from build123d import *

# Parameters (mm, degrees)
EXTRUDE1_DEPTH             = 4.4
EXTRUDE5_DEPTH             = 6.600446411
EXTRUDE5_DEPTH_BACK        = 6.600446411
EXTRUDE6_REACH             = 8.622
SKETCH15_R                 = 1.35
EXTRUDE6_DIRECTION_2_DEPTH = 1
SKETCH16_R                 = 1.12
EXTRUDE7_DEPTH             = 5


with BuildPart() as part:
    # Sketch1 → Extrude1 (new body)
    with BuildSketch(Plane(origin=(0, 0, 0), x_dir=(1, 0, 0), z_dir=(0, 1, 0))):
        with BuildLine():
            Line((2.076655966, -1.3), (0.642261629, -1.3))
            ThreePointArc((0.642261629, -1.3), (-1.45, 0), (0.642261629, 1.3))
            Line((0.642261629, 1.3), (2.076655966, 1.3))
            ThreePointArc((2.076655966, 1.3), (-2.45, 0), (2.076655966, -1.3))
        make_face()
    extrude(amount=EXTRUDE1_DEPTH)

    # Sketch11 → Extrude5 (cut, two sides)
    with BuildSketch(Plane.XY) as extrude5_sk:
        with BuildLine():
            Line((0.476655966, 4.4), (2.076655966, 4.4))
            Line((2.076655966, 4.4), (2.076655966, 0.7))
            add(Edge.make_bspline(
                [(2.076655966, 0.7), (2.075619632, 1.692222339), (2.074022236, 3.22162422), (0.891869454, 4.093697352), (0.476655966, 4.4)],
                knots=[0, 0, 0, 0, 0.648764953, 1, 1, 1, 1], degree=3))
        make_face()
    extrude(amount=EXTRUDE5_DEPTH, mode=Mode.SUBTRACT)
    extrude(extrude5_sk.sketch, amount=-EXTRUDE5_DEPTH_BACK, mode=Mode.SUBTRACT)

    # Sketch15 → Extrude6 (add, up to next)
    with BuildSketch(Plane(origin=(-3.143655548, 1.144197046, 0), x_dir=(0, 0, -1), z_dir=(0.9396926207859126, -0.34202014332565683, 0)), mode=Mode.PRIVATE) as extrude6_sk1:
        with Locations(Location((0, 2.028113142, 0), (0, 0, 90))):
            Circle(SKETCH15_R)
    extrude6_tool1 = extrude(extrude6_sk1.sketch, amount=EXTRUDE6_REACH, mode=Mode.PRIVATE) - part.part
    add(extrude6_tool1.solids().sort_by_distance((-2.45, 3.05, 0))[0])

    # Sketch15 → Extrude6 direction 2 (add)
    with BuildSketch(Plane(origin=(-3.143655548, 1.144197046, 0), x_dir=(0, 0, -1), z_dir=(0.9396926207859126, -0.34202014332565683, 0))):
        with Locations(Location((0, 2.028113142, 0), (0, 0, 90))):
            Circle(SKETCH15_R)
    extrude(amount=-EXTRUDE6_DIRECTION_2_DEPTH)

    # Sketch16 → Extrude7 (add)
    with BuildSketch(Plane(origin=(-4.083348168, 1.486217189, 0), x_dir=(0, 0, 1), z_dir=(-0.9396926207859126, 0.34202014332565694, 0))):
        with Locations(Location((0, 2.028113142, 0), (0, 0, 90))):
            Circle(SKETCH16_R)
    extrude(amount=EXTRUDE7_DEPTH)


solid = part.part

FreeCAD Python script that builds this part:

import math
import FreeCAD as App
import Part
import Sketcher

V = App.Vector
Q = App.Units.Quantity

doc = App.newDocument("Part")
params = doc.addObject("Spreadsheet::Sheet", "Params")
for row, (alias, value) in enumerate([
    ("sketch1_radius", "1.45 mm"),
    ("sketch1_radius2", "2.45 mm"),
    ("pad1_length", "4.4 mm"),
    ("sketch3_diameter", "2.7 mm"),
    ("sketch4_diameter", "2.7 mm"),
    ("pad3_length", "1 mm"),
    ("sketch5_diameter", "2.24 mm"),
    ("pad4_length", "5 mm"),
], start=1):
    params.set(f"A{row}", alias)
    params.set(f"B{row}", "=" + value)
    params.setAlias(f"B{row}", alias)

body = doc.addObject("PartDesign::Body", "Body")

# Sketch on XZ plane
sketch1 = body.newObject("Sketcher::SketchObject", "Sketch")
sketch1.AttachmentSupport = (doc.getObject("XZ_Plane"), [""])
sketch1.MapMode = "FlatFace"
sketch1.addGeometry([
    Part.LineSegment(V(2.076656, 1.3, 0), V(0.642262, 1.3, 0)),
    Part.ArcOfCircle(Part.Circle(V(0, 0, 0), V(0, 0, 1), 1.45), math.radians(63.708445), math.radians(296.291555)),
    Part.LineSegment(V(0.642262, -1.3, 0), V(2.076656, -1.3, 0)),
    Part.ArcOfCircle(Part.Circle(V(0, 0, 0), V(0, 0, 1), 2.45), math.radians(32.046831), math.radians(327.953169)),
], False)
sketch1.addConstraint([
    Sketcher.Constraint("Coincident", 0, 2, 1, 1),
    Sketcher.Constraint("Coincident", 1, 2, 2, 1),
    Sketcher.Constraint("Coincident", 2, 2, 3, 2),
    Sketcher.Constraint("Coincident", 3, 1, 0, 1),
    Sketcher.Constraint("Horizontal", 0),
    Sketcher.Constraint("Horizontal", 2),
    Sketcher.Constraint("Coincident", 1, 3, -1, 1),
    Sketcher.Constraint("Coincident", 3, 3, -1, 1),
    Sketcher.Constraint("Vertical", 0, 2, 1, 2),
    Sketcher.Constraint("Radius", 1, Q("1.45 mm")),
    Sketcher.Constraint("Radius", 3, Q("2.45 mm")),
    Sketcher.Constraint("DistanceY", -1, 1, 0, 2, Q("1.3 mm")),
])
sketch1.setExpression("Constraints[9]", "Params.sketch1_radius")
sketch1.setExpression("Constraints[10]", "Params.sketch1_radius2")
pad1 = body.newObject("PartDesign::Pad", "Pad")
pad1.Profile = sketch1
pad1.setExpression("Length", "Params.pad1_length")
pad1.Reversed = True

# Sketch on XY plane
sketch2 = body.newObject("Sketcher::SketchObject", "Sketch001")
sketch2.AttachmentSupport = (doc.getObject("XY_Plane"), [""])
sketch2.MapMode = "FlatFace"
sketch2.addGeometry([
    Part.LineSegment(V(2.076656, 4.4, 0), V(0.476656, 4.4, 0)),
    Part.BSplineCurve([V(2.076656, 0.7, 0), V(2.07562, 1.692222, 0), V(2.074022, 3.221624, 0), V(0.891869, 4.093697, 0), V(0.476656, 4.4, 0)], [4, 1, 4], [0, 0.648764953, 1], False, 3, [1, 1, 1, 1, 1], False),
    Part.LineSegment(V(2.076656, 0.7, 0), V(2.076656, 4.4, 0)),
], False)
sketch2.addConstraint([
    Sketcher.Constraint("Block", 1),
    Sketcher.Constraint("Coincident", 0, 2, 1, 2),
    Sketcher.Constraint("Coincident", 1, 1, 2, 1),
    Sketcher.Constraint("Coincident", 2, 2, 0, 1),
    Sketcher.Constraint("Horizontal", 0),
    Sketcher.Constraint("Vertical", 2),
])
pocket1 = body.newObject("PartDesign::Pocket", "Pocket")
pocket1.Profile = sketch2
pocket1.Type = "ThroughAll"
pocket1.Midplane = True

# Sketch on an angled plane
sketch3 = body.newObject("Sketcher::SketchObject", "Sketch002")
sketch3.Placement = App.Placement(V(-3.143656, 1.144197, 0), App.Rotation(V(0, 0, -1), V(0.342020143, 0.939692621, 0), V(0.939692621, -0.342020143, 0), "ZXY"))
sketch3.addGeometry(Part.Circle(V(0, 2.028113, 0), V(0, 0, 1), 1.35), False)
sketch3.addConstraint([
    Sketcher.Constraint("PointOnObject", 0, 3, -2),
    Sketcher.Constraint("Diameter", 0, Q("2.7 mm")),
    Sketcher.Constraint("DistanceY", -1, 1, 0, 3, Q("2.028113 mm")),
])
sketch3.setExpression("Constraints[1]", "Params.sketch3_diameter")
pad2 = body.newObject("PartDesign::Pad", "Pad001")
pad2.Profile = sketch3
pad2.Type = "UpToFirst"

# Sketch on an angled plane
sketch4 = body.newObject("Sketcher::SketchObject", "Sketch003")
sketch4.Placement = App.Placement(V(-3.143656, 1.144197, 0), App.Rotation(V(0, 0, -1), V(0.342020143, 0.939692621, 0), V(0.939692621, -0.342020143, 0), "ZXY"))
sketch4.addGeometry(Part.Circle(V(0, 2.028113, 0), V(0, 0, 1), 1.35), False)
sketch4.addConstraint([
    Sketcher.Constraint("PointOnObject", 0, 3, -2),
    Sketcher.Constraint("Diameter", 0, Q("2.7 mm")),
    Sketcher.Constraint("DistanceY", -1, 1, 0, 3, Q("2.028113 mm")),
])
sketch4.setExpression("Constraints[1]", "Params.sketch4_diameter")
pad3 = body.newObject("PartDesign::Pad", "Pad002")
pad3.Profile = sketch4
pad3.setExpression("Length", "Params.pad3_length")
pad3.Reversed = True

# Sketch on an angled plane
sketch5 = body.newObject("Sketcher::SketchObject", "Sketch004")
sketch5.Placement = App.Placement(V(-4.083348, 1.486217, 0), App.Rotation(V(0, 0, 1), V(0.342020143, 0.939692621, 0), V(-0.939692621, 0.342020143, 0), "ZXY"))
sketch5.addGeometry(Part.Circle(V(0, 2.028113, 0), V(0, 0, 1), 1.12), False)
sketch5.addConstraint([
    Sketcher.Constraint("PointOnObject", 0, 3, -2),
    Sketcher.Constraint("Diameter", 0, Q("2.24 mm")),
    Sketcher.Constraint("DistanceY", -1, 1, 0, 3, Q("2.028113 mm")),
])
sketch5.setExpression("Constraints[1]", "Params.sketch5_diameter")
pad4 = body.newObject("PartDesign::Pad", "Pad003")
pad4.Profile = sketch5
pad4.setExpression("Length", "Params.pad4_length")

doc.recompute()
